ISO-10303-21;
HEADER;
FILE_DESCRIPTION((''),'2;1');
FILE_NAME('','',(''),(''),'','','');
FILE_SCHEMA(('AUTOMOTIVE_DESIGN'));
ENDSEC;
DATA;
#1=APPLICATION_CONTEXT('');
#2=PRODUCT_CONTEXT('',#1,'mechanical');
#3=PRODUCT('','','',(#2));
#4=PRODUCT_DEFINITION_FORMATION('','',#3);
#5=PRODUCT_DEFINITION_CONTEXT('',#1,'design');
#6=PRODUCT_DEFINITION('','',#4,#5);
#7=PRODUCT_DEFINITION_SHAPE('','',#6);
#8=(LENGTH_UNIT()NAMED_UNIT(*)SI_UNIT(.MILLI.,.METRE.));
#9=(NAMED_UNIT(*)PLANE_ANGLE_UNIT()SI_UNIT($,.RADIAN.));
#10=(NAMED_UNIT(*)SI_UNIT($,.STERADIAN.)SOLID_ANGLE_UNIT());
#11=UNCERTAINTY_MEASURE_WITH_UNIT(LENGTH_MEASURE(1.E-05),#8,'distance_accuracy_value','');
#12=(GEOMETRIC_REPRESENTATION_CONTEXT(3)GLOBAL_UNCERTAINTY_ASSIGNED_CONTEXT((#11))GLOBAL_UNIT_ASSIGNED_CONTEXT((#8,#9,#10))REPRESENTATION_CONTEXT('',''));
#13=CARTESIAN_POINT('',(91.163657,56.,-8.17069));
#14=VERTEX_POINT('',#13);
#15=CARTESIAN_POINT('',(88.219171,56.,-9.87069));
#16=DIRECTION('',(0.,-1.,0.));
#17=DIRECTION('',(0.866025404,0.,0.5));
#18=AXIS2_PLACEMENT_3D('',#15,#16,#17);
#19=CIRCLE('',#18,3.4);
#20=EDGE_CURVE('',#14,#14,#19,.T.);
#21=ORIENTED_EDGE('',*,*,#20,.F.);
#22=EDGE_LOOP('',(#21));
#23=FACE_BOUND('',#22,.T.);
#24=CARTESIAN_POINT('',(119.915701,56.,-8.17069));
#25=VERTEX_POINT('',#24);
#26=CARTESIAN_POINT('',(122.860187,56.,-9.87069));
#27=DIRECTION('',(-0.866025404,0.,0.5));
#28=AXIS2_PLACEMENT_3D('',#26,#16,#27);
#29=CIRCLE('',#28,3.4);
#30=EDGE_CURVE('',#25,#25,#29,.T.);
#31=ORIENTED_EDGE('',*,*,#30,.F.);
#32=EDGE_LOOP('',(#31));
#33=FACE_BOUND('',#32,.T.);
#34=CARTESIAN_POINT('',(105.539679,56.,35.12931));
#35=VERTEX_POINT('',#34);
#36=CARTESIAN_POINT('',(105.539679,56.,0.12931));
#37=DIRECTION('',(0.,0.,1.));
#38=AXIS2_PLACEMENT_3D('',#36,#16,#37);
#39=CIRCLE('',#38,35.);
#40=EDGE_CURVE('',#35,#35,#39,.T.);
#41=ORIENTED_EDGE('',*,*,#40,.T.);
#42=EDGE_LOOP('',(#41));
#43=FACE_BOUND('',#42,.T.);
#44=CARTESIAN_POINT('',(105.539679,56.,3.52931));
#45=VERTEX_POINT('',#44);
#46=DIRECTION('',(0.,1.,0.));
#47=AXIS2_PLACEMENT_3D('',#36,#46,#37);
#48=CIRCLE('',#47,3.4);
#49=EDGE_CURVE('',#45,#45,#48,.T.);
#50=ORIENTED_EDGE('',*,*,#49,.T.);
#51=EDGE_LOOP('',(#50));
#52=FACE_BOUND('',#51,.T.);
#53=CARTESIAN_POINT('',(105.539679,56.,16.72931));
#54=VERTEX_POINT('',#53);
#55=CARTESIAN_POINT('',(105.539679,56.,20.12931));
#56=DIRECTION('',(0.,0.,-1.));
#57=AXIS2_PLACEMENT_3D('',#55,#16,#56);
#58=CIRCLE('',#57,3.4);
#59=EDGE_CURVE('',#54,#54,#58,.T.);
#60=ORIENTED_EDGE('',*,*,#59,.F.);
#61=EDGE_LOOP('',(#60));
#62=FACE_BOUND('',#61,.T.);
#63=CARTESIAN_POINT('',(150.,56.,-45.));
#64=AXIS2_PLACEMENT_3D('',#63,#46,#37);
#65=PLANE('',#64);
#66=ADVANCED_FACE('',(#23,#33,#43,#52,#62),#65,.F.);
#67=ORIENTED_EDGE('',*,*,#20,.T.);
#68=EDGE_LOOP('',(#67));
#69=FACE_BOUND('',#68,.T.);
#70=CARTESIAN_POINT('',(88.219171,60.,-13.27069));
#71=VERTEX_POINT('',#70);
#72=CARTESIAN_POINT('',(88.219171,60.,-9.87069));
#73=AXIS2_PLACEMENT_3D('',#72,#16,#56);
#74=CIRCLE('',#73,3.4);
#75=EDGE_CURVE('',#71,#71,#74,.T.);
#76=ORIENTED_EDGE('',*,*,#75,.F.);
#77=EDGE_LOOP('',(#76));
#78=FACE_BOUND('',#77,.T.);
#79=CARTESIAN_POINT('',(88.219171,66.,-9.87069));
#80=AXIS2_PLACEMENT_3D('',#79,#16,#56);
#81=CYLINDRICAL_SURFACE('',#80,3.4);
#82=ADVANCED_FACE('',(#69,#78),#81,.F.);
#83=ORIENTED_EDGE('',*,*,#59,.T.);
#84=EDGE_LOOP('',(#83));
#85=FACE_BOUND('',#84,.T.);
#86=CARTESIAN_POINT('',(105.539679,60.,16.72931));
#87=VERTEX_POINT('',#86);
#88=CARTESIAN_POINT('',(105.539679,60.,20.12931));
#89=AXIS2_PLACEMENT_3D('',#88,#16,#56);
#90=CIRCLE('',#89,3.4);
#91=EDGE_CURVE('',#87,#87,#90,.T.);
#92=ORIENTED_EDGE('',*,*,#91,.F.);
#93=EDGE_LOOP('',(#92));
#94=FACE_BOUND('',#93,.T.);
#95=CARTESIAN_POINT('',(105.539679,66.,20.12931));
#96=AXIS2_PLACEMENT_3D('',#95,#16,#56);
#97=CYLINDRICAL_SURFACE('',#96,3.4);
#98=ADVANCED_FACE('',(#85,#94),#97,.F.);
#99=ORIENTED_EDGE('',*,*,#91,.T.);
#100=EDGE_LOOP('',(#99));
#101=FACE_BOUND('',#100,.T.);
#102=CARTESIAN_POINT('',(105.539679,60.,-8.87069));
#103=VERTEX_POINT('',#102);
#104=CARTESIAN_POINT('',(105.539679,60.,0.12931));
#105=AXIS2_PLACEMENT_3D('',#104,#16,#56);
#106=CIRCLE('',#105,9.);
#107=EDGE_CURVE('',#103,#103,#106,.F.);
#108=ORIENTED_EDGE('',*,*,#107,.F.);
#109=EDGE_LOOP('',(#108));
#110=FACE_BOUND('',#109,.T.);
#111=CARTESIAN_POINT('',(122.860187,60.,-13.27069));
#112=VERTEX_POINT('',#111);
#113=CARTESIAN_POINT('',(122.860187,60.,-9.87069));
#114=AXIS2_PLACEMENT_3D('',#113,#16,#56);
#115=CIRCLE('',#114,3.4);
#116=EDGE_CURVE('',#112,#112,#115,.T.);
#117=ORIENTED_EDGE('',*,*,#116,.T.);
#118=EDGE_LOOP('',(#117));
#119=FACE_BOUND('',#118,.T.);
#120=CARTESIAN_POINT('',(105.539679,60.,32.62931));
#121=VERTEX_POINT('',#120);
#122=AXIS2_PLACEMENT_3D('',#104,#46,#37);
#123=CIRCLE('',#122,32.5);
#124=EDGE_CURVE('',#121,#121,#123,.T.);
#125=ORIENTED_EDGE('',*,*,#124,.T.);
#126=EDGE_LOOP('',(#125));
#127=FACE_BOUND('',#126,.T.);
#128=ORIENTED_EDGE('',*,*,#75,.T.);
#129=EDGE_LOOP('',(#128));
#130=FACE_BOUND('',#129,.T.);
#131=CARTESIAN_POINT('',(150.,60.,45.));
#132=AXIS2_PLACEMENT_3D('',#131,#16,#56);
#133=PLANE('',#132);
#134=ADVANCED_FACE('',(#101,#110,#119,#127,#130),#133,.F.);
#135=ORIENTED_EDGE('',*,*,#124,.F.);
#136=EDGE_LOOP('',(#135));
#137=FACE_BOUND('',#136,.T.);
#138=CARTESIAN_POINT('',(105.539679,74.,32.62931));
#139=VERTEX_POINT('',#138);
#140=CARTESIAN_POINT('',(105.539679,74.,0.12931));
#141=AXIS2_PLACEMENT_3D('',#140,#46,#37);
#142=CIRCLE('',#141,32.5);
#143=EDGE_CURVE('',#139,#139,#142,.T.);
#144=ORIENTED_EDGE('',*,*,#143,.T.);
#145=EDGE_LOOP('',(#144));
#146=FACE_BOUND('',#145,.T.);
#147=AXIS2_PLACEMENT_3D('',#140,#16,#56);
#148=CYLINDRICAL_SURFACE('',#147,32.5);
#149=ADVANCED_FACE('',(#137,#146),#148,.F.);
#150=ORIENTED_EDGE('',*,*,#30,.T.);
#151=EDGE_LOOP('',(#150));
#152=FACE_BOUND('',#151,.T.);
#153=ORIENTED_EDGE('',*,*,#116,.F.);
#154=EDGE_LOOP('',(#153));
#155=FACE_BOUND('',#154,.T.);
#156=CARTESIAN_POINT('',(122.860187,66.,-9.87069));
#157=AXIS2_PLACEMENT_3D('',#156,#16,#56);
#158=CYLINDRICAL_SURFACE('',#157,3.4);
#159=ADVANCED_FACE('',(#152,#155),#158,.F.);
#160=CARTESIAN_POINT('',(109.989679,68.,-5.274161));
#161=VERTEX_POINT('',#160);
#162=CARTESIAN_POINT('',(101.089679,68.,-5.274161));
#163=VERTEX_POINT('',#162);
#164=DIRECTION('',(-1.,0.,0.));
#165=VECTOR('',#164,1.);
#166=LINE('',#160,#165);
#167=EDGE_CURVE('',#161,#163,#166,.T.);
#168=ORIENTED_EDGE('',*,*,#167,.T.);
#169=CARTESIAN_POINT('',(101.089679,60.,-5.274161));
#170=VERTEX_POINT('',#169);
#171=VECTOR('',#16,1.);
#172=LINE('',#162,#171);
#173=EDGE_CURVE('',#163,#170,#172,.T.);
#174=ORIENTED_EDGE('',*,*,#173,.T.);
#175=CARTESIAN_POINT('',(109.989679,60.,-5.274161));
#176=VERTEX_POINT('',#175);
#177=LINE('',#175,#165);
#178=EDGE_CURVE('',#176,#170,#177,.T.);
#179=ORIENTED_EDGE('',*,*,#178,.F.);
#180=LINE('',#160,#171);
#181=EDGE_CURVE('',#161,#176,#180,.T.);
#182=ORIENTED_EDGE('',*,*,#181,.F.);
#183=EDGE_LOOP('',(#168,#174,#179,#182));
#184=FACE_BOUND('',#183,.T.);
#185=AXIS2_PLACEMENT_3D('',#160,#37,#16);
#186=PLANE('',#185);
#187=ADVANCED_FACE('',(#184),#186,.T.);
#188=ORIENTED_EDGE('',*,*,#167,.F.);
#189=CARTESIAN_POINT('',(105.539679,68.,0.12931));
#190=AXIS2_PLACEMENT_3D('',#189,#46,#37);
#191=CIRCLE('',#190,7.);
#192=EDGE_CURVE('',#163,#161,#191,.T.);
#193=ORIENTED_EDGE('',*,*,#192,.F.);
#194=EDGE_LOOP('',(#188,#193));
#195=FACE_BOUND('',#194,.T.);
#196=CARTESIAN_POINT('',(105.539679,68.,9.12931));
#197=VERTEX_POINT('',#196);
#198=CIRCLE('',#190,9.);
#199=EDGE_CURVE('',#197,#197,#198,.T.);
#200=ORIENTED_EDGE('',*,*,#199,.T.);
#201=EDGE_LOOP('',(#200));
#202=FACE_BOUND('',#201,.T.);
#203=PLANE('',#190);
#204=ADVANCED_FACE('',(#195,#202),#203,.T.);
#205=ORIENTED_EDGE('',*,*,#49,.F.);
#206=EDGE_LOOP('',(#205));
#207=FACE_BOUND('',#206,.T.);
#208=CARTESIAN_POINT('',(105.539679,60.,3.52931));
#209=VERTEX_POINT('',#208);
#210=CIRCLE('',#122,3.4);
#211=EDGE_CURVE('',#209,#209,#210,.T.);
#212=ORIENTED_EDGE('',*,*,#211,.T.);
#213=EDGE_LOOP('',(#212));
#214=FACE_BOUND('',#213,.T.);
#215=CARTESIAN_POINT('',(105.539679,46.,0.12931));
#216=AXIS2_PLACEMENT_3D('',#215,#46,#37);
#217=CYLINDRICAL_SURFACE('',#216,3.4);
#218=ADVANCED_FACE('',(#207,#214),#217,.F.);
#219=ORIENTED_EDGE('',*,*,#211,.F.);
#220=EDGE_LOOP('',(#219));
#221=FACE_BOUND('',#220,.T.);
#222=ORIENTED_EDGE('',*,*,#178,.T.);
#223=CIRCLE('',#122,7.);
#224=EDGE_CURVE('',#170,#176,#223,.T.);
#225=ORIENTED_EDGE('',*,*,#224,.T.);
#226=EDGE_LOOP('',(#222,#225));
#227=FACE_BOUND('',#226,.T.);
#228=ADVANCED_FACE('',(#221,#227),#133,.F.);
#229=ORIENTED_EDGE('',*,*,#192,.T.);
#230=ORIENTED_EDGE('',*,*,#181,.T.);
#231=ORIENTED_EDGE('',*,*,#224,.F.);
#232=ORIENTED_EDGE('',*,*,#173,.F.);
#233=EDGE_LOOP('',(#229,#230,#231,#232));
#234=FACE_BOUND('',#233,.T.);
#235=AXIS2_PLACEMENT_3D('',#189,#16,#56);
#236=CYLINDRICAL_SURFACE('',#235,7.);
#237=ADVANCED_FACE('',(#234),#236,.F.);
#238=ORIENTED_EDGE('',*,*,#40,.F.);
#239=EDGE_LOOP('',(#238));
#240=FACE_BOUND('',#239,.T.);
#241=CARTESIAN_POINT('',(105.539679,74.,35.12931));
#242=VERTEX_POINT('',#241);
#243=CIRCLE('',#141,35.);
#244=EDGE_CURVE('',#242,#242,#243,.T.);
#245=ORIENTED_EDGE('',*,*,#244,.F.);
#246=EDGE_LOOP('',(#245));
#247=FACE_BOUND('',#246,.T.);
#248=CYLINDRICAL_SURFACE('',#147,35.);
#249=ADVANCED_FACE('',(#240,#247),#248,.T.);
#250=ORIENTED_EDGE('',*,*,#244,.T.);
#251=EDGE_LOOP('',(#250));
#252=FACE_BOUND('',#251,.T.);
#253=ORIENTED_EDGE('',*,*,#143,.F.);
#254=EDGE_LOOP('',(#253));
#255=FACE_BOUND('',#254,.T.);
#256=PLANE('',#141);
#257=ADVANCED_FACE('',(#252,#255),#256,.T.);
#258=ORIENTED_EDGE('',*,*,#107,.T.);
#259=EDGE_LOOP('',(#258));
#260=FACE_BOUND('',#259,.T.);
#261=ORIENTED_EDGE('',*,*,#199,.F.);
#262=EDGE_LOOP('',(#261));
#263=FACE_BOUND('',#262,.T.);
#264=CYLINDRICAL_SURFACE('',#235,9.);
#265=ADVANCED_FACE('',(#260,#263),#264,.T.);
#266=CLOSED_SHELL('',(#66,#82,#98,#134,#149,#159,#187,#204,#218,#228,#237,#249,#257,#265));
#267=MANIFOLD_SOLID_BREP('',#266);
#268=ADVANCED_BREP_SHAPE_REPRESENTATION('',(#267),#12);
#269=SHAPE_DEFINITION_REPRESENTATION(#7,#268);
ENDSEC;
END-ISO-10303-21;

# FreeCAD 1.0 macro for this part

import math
import FreeCAD as App
import Part
import Sketcher

doc = App.newDocument("Part")
body = doc.addObject("PartDesign::Body", "Body")

# Sketch on YZ plane
sketch1 = body.newObject("Sketcher::SketchObject", "Sketch")
sketch1.AttachmentSupport = (doc.getObject("YZ_Plane"), [""])
sketch1.MapMode = "FlatFace"
sketch1.addGeometry(Part.LineSegment(App.Vector(-60, 45, 0), App.Vector(-60, -45, 0)), False)
sketch1.addGeometry(Part.LineSegment(App.Vector(-60, -45, 0), App.Vector(-56, -45, 0)), False)
sketch1.addGeometry(Part.LineSegment(App.Vector(-56, -45, 0), App.Vector(-56, 41, 0)), False)
sketch1.addGeometry(Part.LineSegment(App.Vector(-56, 41, 0), App.Vector(56, 41, 0)), False)
sketch1.addGeometry(Part.LineSegment(App.Vector(56, 41, 0), App.Vector(56, -45, 0)), False)
sketch1.addGeometry(Part.LineSegment(App.Vector(56, -45, 0), App.Vector(60, -45, 0)), False)
sketch1.addGeometry(Part.LineSegment(App.Vector(60, -45, 0), App.Vector(60, 45, 0)), False)
sketch1.addGeometry(Part.LineSegment(App.Vector(60, 45, 0), App.Vector(-60, 45, 0)), False)
sketch1.addConstraint(Sketcher.Constraint("Coincident", 0, 2, 1, 1))
sketch1.addConstraint(Sketcher.Constraint("Coincident", 1, 2, 2, 1))
sketch1.addConstraint(Sketcher.Constraint("Coincident", 2, 2, 3, 1))
sketch1.addConstraint(Sketcher.Constraint("Coincident", 3, 2, 4, 1))
sketch1.addConstraint(Sketcher.Constraint("Coincident", 4, 2, 5, 1))
sketch1.addConstraint(Sketcher.Constraint("Coincident", 5, 2, 6, 1))
sketch1.addConstraint(Sketcher.Constraint("Coincident", 6, 2, 7, 1))
sketch1.addConstraint(Sketcher.Constraint("Coincident", 7, 2, 0, 1))
sketch1.addConstraint(Sketcher.Constraint("Vertical", 0))
sketch1.addConstraint(Sketcher.Constraint("Horizontal", 1))
sketch1.addConstraint(Sketcher.Constraint("Vertical", 2))
sketch1.addConstraint(Sketcher.Constraint("Horizontal", 3))
sketch1.addConstraint(Sketcher.Constraint("Vertical", 4))
sketch1.addConstraint(Sketcher.Constraint("Horizontal", 5))
sketch1.addConstraint(Sketcher.Constraint("Vertical", 6))
sketch1.addConstraint(Sketcher.Constraint("Horizontal", 7))
sketch1.addConstraint(Sketcher.Constraint("Symmetric", 0, 2, 6, 2, -1, 1))
sketch1.addConstraint(Sketcher.Constraint("Symmetric", 1, 2, 4, 2, -2))
sketch1.addConstraint(Sketcher.Constraint("DistanceX", 1, 1, 1, 2, 4.0))
sketch1.addConstraint(Sketcher.Constraint("DistanceX", 3, 1, 3, 2, 112.0))
sketch1.addConstraint(Sketcher.Constraint("DistanceY", 0, 2, 0, 1, 90.0))
sketch1.addConstraint(Sketcher.Constraint("DistanceY", 2, 1, 2, 2, 86.0))
pad1 = body.newObject("PartDesign::Pad", "Pad")
pad1.Profile = sketch1
pad1.Length = 150

# Sketch on XZ plane
sketch2 = body.newObject("Sketcher::SketchObject", "Sketch001")
sketch2.AttachmentSupport = (doc.getObject("XZ_Plane"), [""])
sketch2.MapMode = "FlatFace"
sketch2.AttachmentOffset = App.Placement(App.Vector(0, 0, -60), App.Rotation())
sketch2.addGeometry(Part.Circle(App.Vector(105.539679, 0.12931, 0), App.Vector(0, 0, 1), 35), False)
sketch2.addGeometry(Part.Circle(App.Vector(105.539679, 0.12931, 0), App.Vector(0, 0, 1), 32.5), False)
sketch2.addConstraint(Sketcher.Constraint("Coincident", 1, 3, 0, 3))
sketch2.addConstraint(Sketcher.Constraint("Diameter", 0, 70.0))
sketch2.addConstraint(Sketcher.Constraint("Diameter", 1, 65.0))
sketch2.addConstraint(Sketcher.Constraint("DistanceX", -1, 1, 0, 3, 105.539679))
sketch2.addConstraint(Sketcher.Constraint("DistanceY", -1, 1, 0, 3, 0.12931))
pad2 = body.newObject("PartDesign::Pad", "Pad001")
pad2.Profile = sketch2
pad2.Length = 14
pad2.Reversed = True

# Sketch on XZ plane
sketch3 = body.newObject("Sketcher::SketchObject", "Sketch002")
sketch3.AttachmentSupport = (doc.getObject("XZ_Plane"), [""])
sketch3.MapMode = "FlatFace"
sketch3.AttachmentOffset = App.Placement(App.Vector(0, 0, -60), App.Rotation())
sketch3.addGeometry(Part.Circle(App.Vector(105.539679, 0.12931, 0), App.Vector(0, 0, 1), 9), False)
sketch3.addGeometry(Part.LineSegment(App.Vector(101.089679, -5.274161, 0), App.Vector(109.989679, -5.274161, 0)), False)
sketch3.addGeometry(Part.ArcOfCircle(Part.Circle(App.Vector(105.539679, 0.12931, 0), App.Vector(0, 0, 1), 7), math.radians(-50.527018), math.radians(230.527018)), False)
sketch3.addConstraint(Sketcher.Constraint("Coincident", 1, 1, 2, 2))
sketch3.addConstraint(Sketcher.Constraint("Coincident", 2, 1, 1, 2))
sketch3.addConstraint(Sketcher.Constraint("Horizontal", 1))
sketch3.addConstraint(Sketcher.Constraint("Coincident", 2, 3, 0, 3))
sketch3.addConstraint(Sketcher.Constraint("Diameter", 0, 18.0))
sketch3.addConstraint(Sketcher.Constraint("Radius", 2, 7.0))
sketch3.addConstraint(Sketcher.Constraint("DistanceX", 1, 1, 1, 2, 8.9))
sketch3.addConstraint(Sketcher.Constraint("DistanceX", -1, 1, 0, 3, 105.539679))
sketch3.addConstraint(Sketcher.Constraint("DistanceY", -1, 1, 0, 3, 0.12931))
pad3 = body.newObject("PartDesign::Pad", "Pad002")
pad3.Profile = sketch3
pad3.Length = 8
pad3.Reversed = True

# Sketch on XZ plane
sketch4 = body.newObject("Sketcher::SketchObject", "Sketch003")
sketch4.AttachmentSupport = (doc.getObject("XZ_Plane"), [""])
sketch4.MapMode = "FlatFace"
sketch4.AttachmentOffset = App.Placement(App.Vector(0, 0, -60), App.Rotation())
sketch4.addGeometry(Part.Circle(App.Vector(105.539679, 0.12931, 0), App.Vector(0, 0, 1), 3.4), False)
sketch4.addConstraint(Sketcher.Constraint("Diameter", 0, 6.8))
sketch4.addConstraint(Sketcher.Constraint("DistanceX", -1, 1, 0, 3, 105.539679))
sketch4.addConstraint(Sketcher.Constraint("DistanceY", -1, 1, 0, 3, 0.12931))
pocket1 = body.newObject("PartDesign::Pocket", "Pocket")
pocket1.Profile = sketch4
pocket1.Length = 14
pocket1.Reversed = True

# Sketch on YZ plane
sketch5 = body.newObject("Sketcher::SketchObject", "Sketch004")
sketch5.AttachmentSupport = (doc.getObject("YZ_Plane"), [""])
sketch5.MapMode = "FlatFace"
sketch5.AttachmentOffset = App.Placement(App.Vector(0, 0, 150), App.Rotation())
sketch5.addGeometry(Part.LineSegment(App.Vector(56, 35.12931, 0), App.Vector(60, 35.12931, 0)), False)
sketch5.addGeometry(Part.LineSegment(App.Vector(60, 35.12931, 0), App.Vector(60, 45, 0)), False)
sketch5.addGeometry(Part.LineSegment(App.Vector(60, 45, 0), App.Vector(-60, 45, 0)), False)
sketch5.addGeometry(Part.LineSegment(App.Vector(-60, 45, 0), App.Vector(-60, -45, 0)), False)
sketch5.addGeometry(Part.LineSegment(App.Vector(-60, -45, 0), App.Vector(60, -45, 0)), False)
sketch5.addGeometry(Part.LineSegment(App.Vector(60, -45, 0), App.Vector(60, -34.87069, 0)), False)
sketch5.addGeometry(Part.LineSegment(App.Vector(60, -34.87069, 0), App.Vector(56, -34.87069, 0)), False)
sketch5.addGeometry(Part.LineSegment(App.Vector(56, -34.87069, 0), App.Vector(56, 35.12931, 0)), False)
sketch5.addConstraint(Sketcher.Constraint("Coincident", 0, 2, 1, 1))
sketch5.addConstraint(Sketcher.Constraint("Coincident", 1, 2, 2, 1))
sketch5.addConstraint(Sketcher.Constraint("Coincident", 2, 2, 3, 1))
sketch5.addConstraint(Sketcher.Constraint("Coincident", 3, 2, 4, 1))
sketch5.addConstraint(Sketcher.Constraint("Coincident", 4, 2, 5, 1))
sketch5.addConstraint(Sketcher.Constraint("Coincident", 5, 2, 6, 1))
sketch5.addConstraint(Sketcher.Constraint("Coincident", 6, 2, 7, 1))
sketch5.addConstraint(Sketcher.Constraint("Coincident", 7, 2, 0, 1))
sketch5.addConstraint(Sketcher.Constraint("Horizontal", 0))
sketch5.addConstraint(Sketcher.Constraint("Vertical", 1))
sketch5.addConstraint(Sketcher.Constraint("Horizontal", 2))
sketch5.addConstraint(Sketcher.Constraint("Vertical", 3))
sketch5.addConstraint(Sketcher.Constraint("Horizontal", 4))
sketch5.addConstraint(Sketcher.Constraint("Vertical", 5))
sketch5.addConstraint(Sketcher.Constraint("Horizontal", 6))
sketch5.addConstraint(Sketcher.Constraint("Vertical", 7))
sketch5.addConstraint(Sketcher.Constraint("Symmetric", 1, 2, 3, 2, -1, 1))
sketch5.addConstraint(Sketcher.Constraint("Vertical", 1, 2, 4, 2))
sketch5.addConstraint(Sketcher.Constraint("DistanceX", 0, 1, 0, 2, 4.0))
sketch5.addConstraint(Sketcher.Constraint("DistanceX", 2, 2, 2, 1, 120.0))
sketch5.addConstraint(Sketcher.Constraint("DistanceY", 3, 2, 3, 1, 90.0))
sketch5.addConstraint(Sketcher.Constraint("DistanceY", 7, 1, 7, 2, 70.0))
sketch5.addConstraint(Sketcher.Constraint("DistanceY", 1, 1, 1, 2, 9.87069))
pocket2 = body.newObject("PartDesign::Pocket", "Pocket001")
pocket2.Profile = sketch5
pocket2.Length = 154

# Sketch on XZ plane
sketch6 = body.newObject("Sketcher::SketchObject", "Sketch005")
sketch6.AttachmentSupport = (doc.getObject("XZ_Plane"), [""])
sketch6.MapMode = "FlatFace"
sketch6.AttachmentOffset = App.Placement(App.Vector(0, 0, -56), App.Rotation())
sketch6.addGeometry(Part.LineSegment(App.Vector(105.539679, 35.12931, 0), App.Vector(150, 35.12931, 0)), False)
sketch6.addGeometry(Part.LineSegment(App.Vector(150, 35.12931, 0), App.Vector(150, -34.87069, 0)), False)
sketch6.addGeometry(Part.LineSegment(App.Vector(150, -34.87069, 0), App.Vector(105.539679, -34.87069, 0)), False)
sketch6.addGeometry(Part.ArcOfCircle(Part.Circle(App.Vector(105.539679, 0.12931, 0), App.Vector(0, 0, 1), 35), math.radians(-90), math.radians(90)), False)
sketch6.addConstraint(Sketcher.Constraint("Coincident", 0, 2, 1, 1))
sketch6.addConstraint(Sketcher.Constraint("Coincident", 1, 2, 2, 1))
sketch6.addConstraint(Sketcher.Constraint("Tangent", 2, 2, 3, 1))
sketch6.addConstraint(Sketcher.Constraint("Tangent", 3, 2, 0, 1))
sketch6.addConstraint(Sketcher.Constraint("Horizontal", 0))
sketch6.addConstraint(Sketcher.Constraint("Vertical", 1))
sketch6.addConstraint(Sketcher.Constraint("Horizontal", 2))
sketch6.addConstraint(Sketcher.Constraint("Radius", 3, 35.0))
sketch6.addConstraint(Sketcher.Constraint("DistanceX", -1, 1, 0, 2, 150.0))
sketch6.addConstraint(Sketcher.Constraint("DistanceX", 0, 1, 0, 2, 44.460321))
sketch6.addConstraint(Sketcher.Constraint("DistanceY", -1, 1, 3, 3, 0.12931))
pocket3 = body.newObject("PartDesign::Pocket", "Pocket002")
pocket3.Profile = sketch6
pocket3.Length = 4

# Sketch on XZ plane
sketch7 = body.newObject("Sketcher::SketchObject", "Sketch006")
sketch7.AttachmentSupport = (doc.getObject("XZ_Plane"), [""])
sketch7.MapMode = "FlatFace"
sketch7.AttachmentOffset = App.Placement(App.Vector(0, 0, -56), App.Rotation())
sketch7.addGeometry(Part.LineSegment(App.Vector(0, 35.12931, 0), App.Vector(105.539679, 35.12931, 0)), False)
sketch7.addGeometry(Part.ArcOfCircle(Part.Circle(App.Vector(105.539679, 0.12931, 0), App.Vector(0, 0, 1), 35), math.radians(90), math.radians(270)), False)
sketch7.addGeometry(Part.LineSegment(App.Vector(105.539679, -34.87069, 0), App.Vector(0, -34.87069, 0)), False)
sketch7.addGeometry(Part.LineSegment(App.Vector(0, -34.87069, 0), App.Vector(0, 35.12931, 0)), False)
sketch7.addConstraint(Sketcher.Constraint("Tangent", 0, 2, 1, 1))
sketch7.addConstraint(Sketcher.Constraint("Tangent", 1, 2, 2, 1))
sketch7.addConstraint(Sketcher.Constraint("Coincident", 2, 2, 3, 1))
sketch7.addConstraint(Sketcher.Constraint("Coincident", 3, 2, 0, 1))
sketch7.addConstraint(Sketcher.Constraint("Horizontal", 0))
sketch7.addConstraint(Sketcher.Constraint("Horizontal", 2))
sketch7.addConstraint(Sketcher.Constraint("Vertical", 3))
sketch7.addConstraint(Sketcher.Constraint("PointOnObject", 2, 2, -2))
sketch7.addConstraint(Sketcher.Constraint("Radius", 1, 35.0))
sketch7.addConstraint(Sketcher.Constraint("DistanceX", 0, 1, 0, 2, 105.539679))
sketch7.addConstraint(Sketcher.Constraint("DistanceY", -1, 1, 1, 3, 0.12931))
pocket4 = body.newObject("PartDesign::Pocket", "Pocket003")
pocket4.Profile = sketch7
pocket4.Length = 4

# Sketch on XZ plane
sketch8 = body.newObject("Sketcher::SketchObject", "Sketch007")
sketch8.AttachmentSupport = (doc.getObject("XZ_Plane"), [""])
sketch8.MapMode = "FlatFace"
sketch8.AttachmentOffset = App.Placement(App.Vector(0, 0, -56), App.Rotation())
sketch8.addGeometry(Part.Circle(App.Vector(105.539679, 20.12931, 0), App.Vector(0, 0, 1), 3.4), False)
sketch8.addConstraint(Sketcher.Constraint("Diameter", 0, 6.8))
sketch8.addConstraint(Sketcher.Constraint("DistanceX", -1, 1, 0, 3, 105.539679))
sketch8.addConstraint(Sketcher.Constraint("DistanceY", -1, 1, 0, 3, 20.12931))
pocket5 = body.newObject("PartDesign::Pocket", "Pocket004")
pocket5.Profile = sketch8
pocket5.Length = 10
doc.recompute()

datumline = body.newObject("PartDesign::Line", "DatumLine")
datumline.Placement = App.Placement(App.Vector(105.539679, 0, 0.12931), App.Rotation(App.Vector(0, 0, 1), App.Vector(0, 1, 0)))
polarpattern = body.newObject("PartDesign::PolarPattern", "PolarPattern")
polarpattern.Originals = [pocket5]
polarpattern.Axis = (datumline, [""])
polarpattern.Angle = 360
polarpattern.Occurrences = 3
body.Tip = polarpattern

doc.recompute()
